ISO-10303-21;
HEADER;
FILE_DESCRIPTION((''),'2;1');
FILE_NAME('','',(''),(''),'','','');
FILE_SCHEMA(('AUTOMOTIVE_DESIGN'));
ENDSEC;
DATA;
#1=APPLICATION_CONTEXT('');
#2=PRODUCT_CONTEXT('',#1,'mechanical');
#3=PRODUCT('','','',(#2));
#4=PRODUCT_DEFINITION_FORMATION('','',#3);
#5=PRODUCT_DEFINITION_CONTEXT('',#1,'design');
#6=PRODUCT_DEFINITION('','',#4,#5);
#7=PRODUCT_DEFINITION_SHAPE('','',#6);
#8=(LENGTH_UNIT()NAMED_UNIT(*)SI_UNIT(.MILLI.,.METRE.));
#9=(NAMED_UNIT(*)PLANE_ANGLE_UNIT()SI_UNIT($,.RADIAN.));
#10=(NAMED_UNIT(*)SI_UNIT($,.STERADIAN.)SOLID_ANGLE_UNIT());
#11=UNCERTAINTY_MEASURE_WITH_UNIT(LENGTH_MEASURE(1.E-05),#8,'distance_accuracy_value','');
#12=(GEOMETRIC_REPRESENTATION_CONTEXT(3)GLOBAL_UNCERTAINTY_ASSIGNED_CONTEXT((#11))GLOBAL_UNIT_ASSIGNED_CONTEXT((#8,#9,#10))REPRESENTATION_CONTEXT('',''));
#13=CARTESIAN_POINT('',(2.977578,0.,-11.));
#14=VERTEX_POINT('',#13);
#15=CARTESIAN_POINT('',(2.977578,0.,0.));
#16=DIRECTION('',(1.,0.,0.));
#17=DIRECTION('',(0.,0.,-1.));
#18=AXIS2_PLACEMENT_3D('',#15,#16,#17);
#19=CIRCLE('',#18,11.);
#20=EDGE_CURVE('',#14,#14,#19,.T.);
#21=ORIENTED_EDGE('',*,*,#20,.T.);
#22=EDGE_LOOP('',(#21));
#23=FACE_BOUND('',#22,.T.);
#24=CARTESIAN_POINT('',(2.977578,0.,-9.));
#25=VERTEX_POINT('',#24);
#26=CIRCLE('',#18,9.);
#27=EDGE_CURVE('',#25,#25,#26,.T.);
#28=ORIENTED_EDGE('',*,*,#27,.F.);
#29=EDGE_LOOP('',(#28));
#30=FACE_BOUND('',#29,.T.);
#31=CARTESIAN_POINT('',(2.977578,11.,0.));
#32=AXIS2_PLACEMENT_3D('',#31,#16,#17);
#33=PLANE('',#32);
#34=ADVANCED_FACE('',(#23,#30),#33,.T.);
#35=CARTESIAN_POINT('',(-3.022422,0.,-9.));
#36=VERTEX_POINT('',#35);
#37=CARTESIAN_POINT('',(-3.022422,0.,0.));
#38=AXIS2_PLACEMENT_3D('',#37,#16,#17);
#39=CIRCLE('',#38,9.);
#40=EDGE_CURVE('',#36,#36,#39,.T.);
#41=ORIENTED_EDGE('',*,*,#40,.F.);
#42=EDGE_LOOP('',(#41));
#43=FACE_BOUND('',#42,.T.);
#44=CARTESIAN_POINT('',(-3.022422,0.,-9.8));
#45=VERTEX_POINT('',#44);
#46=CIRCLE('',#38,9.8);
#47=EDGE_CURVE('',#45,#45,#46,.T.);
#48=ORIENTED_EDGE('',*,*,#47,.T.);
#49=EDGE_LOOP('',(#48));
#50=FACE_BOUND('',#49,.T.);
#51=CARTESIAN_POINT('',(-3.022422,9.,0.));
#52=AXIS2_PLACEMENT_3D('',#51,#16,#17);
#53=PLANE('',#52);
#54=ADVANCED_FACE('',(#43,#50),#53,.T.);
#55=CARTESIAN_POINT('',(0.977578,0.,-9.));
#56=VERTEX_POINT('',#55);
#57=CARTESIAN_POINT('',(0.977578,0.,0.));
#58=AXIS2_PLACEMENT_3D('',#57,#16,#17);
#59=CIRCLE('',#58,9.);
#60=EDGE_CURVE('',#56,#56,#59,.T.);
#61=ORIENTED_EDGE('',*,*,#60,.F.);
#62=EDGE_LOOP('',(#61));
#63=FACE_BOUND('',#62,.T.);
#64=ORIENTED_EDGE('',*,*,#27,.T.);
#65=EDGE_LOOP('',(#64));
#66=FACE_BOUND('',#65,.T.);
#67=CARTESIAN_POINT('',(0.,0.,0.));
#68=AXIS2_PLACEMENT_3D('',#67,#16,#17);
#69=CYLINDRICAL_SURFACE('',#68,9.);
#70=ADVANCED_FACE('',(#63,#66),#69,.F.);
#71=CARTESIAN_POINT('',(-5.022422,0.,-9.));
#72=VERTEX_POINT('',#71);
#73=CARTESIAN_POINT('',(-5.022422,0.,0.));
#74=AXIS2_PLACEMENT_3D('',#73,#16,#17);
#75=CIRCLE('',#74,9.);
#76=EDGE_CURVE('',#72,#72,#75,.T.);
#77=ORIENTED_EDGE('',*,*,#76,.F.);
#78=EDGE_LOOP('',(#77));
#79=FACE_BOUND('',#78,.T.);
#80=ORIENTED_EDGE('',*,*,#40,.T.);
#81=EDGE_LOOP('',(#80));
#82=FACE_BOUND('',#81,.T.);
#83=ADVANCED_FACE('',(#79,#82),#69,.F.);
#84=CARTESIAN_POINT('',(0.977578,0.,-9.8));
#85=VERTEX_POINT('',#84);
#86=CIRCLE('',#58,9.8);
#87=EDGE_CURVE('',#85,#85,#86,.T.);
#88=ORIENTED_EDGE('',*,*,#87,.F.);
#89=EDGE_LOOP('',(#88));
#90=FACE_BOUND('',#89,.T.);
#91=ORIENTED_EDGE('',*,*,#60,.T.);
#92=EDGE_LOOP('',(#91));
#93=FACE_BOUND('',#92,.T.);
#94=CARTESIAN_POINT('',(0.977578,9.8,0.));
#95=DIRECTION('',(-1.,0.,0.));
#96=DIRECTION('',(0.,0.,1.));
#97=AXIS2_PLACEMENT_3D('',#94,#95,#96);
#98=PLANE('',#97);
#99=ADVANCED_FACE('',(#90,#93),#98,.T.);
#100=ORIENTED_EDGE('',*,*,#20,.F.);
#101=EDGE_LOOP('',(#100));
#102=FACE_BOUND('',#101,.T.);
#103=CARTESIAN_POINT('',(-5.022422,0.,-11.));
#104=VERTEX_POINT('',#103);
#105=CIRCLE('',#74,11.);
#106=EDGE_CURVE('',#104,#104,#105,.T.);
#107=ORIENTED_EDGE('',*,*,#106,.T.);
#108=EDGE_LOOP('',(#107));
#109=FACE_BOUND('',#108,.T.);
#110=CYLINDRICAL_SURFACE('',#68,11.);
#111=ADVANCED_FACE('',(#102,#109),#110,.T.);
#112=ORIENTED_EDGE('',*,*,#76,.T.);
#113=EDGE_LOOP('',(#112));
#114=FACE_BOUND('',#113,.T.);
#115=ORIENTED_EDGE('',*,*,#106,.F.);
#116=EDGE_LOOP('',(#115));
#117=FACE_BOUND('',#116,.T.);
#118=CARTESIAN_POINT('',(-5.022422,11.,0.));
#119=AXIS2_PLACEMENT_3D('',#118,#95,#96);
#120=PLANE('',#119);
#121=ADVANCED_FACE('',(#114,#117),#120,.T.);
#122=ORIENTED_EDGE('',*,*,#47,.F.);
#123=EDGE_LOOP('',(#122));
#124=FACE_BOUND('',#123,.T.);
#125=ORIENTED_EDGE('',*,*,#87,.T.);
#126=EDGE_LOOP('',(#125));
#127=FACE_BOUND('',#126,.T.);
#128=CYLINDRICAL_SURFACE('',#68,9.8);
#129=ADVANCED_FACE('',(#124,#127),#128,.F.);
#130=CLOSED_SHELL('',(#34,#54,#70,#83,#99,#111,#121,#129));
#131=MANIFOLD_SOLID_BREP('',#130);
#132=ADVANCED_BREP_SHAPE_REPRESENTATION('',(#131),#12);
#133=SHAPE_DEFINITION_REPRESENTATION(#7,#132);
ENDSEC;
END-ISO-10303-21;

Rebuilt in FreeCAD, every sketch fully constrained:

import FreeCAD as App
import Part
import Sketcher
from FreeCAD import Vector

doc = App.newDocument("Part")
body = doc.addObject("PartDesign::Body", "Body")

# Sketch on XY plane
sketch1 = body.newObject("Sketcher::SketchObject", "Sketch")
sketch1.AttachmentSupport = (doc.getObject("XY_Plane"), [""])
sketch1.MapMode = "FlatFace"
sketch1.addGeometry([
    Part.LineSegment(Vector(2.977578, 11, 0), Vector(-5.022422, 11, 0)),  # 0
    Part.LineSegment(Vector(-5.022422, 11, 0), Vector(-5.022422, 9, 0)),  # 1
    Part.LineSegment(Vector(-5.022422, 9, 0), Vector(-3.022422, 9, 0)),  # 2
    Part.LineSegment(Vector(-3.022422, 9, 0), Vector(-3.022422, 9.8, 0)),  # 3
    Part.LineSegment(Vector(-3.022422, 9.8, 0), Vector(0.977578, 9.8, 0)),  # 4
    Part.LineSegment(Vector(0.977578, 9.8, 0), Vector(0.977578, 9, 0)),  # 5
    Part.LineSegment(Vector(0.977578, 9, 0), Vector(2.977578, 9, 0)),  # 6
    Part.LineSegment(Vector(2.977578, 9, 0), Vector(2.977578, 11, 0)),  # 7
], False)
sketch1.addConstraint([
    Sketcher.Constraint("Coincident", 0, 2, 1, 1),
    Sketcher.Constraint("Coincident", 1, 2, 2, 1),
    Sketcher.Constraint("Coincident", 2, 2, 3, 1),
    Sketcher.Constraint("Coincident", 3, 2, 4, 1),
    Sketcher.Constraint("Coincident", 4, 2, 5, 1),
    Sketcher.Constraint("Coincident", 5, 2, 6, 1),
    Sketcher.Constraint("Coincident", 6, 2, 7, 1),
    Sketcher.Constraint("Coincident", 7, 2, 0, 1),
    Sketcher.Constraint("Horizontal", 0),
    Sketcher.Constraint("Vertical", 1),
    Sketcher.Constraint("Horizontal", 2),
    Sketcher.Constraint("Vertical", 3),
    Sketcher.Constraint("Horizontal", 4),
    Sketcher.Constraint("Vertical", 5),
    Sketcher.Constraint("Horizontal", 6),
    Sketcher.Constraint("Vertical", 7),
    Sketcher.Constraint("Horizontal", 2, 2, 5, 2),
    Sketcher.Constraint("Equal", 2, 6),
    Sketcher.Constraint("Equal", 6, 1),
    Sketcher.Constraint("DistanceX", 0, 2, 0, 1, 8.0),
    Sketcher.Constraint("DistanceX", 2, 1, 2, 2, 2.0),
    Sketcher.Constraint("DistanceY", 3, 1, 3, 2, 0.8),
    Sketcher.Constraint("DistanceY", -1, 1, 0, 2, 11.0),
    Sketcher.Constraint("DistanceX", 0, 2, -1, 1, 5.022422),
])
revolution = body.newObject("PartDesign::Revolution", "Revolution")
revolution.Profile = sketch1
revolution.ReferenceAxis = (sketch1, ["H_Axis"])
revolution.Angle = 360

doc.recompute()
